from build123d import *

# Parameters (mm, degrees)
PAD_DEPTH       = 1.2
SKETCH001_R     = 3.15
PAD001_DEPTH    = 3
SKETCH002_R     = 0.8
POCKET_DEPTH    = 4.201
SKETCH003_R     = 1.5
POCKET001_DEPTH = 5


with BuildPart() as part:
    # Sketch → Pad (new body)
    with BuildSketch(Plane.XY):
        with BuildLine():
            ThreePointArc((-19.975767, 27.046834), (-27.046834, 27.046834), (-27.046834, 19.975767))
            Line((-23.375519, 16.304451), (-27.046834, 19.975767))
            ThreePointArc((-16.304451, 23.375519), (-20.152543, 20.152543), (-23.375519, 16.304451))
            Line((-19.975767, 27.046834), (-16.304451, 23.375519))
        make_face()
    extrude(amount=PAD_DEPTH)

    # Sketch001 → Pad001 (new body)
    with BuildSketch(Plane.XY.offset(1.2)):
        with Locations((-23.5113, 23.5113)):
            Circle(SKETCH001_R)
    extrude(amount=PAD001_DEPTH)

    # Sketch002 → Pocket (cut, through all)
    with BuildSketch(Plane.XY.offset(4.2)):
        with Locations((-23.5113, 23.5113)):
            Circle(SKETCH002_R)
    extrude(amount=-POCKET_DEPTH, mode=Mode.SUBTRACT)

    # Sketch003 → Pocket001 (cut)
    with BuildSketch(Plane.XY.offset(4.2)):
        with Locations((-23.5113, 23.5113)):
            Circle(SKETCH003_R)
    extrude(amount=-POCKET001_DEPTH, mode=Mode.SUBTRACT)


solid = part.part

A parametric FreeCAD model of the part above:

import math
import FreeCAD as App
import Part
import Sketcher

V = App.Vector
Q = App.Units.Quantity

doc = App.newDocument("Part")
body = doc.addObject("PartDesign::Body", "Body")

# Sketch on XY plane
sketch1 = body.newObject("Sketcher::SketchObject", "Sketch")
sketch1.AttachmentSupport = (doc.getObject("XY_Plane"), [""])
sketch1.MapMode = "FlatFace"
sketch1.addGeometry([
    Part.ArcOfCircle(Part.Circle(V(-23.5, 23.5, 0), V(0, 0, 1), 5), math.radians(45), math.radians(225)),
    Part.LineSegment(V(-27, 20, 0), V(-23.4, 16.3, 0)),
    Part.ArcOfCircle(Part.Circle(V(0, 0, 0), V(0, 0, 1), 28.5), math.radians(125), math.radians(145)),
    Part.LineSegment(V(-16.3, 23.4, 0), V(-20, 27, 0)),
], False)
sketch1.addConstraint([
    Sketcher.Constraint("Tangent", 0, 2, 1, 1),
    Sketcher.Constraint("Coincident", 1, 2, 2, 2),
    Sketcher.Constraint("Coincident", 2, 1, 3, 1),
    Sketcher.Constraint("Tangent", 3, 2, 0, 1),
    Sketcher.Constraint("Parallel", 1, 3),
    Sketcher.Constraint("Equal", 1, 3),
    Sketcher.Constraint("Radius", 0, Q("4.999999 mm")),
    Sketcher.Constraint("Angle", 1, Q("-45.000008 deg")),
    Sketcher.Constraint("Radius", 2, Q("28.500036 mm")),
    Sketcher.Constraint("DistanceX", 0, 3, -1, 1, Q("23.511301 mm")),
    Sketcher.Constraint("DistanceY", -1, 1, 0, 3, Q("23.511301 mm")),
    Sketcher.Constraint("DistanceX", 1, 2, -1, 1, Q("23.375519 mm")),
])
pad1 = body.newObject("PartDesign::Pad", "Pad")
pad1.Profile = sketch1
pad1.Length = 1.2

# Sketch on XY plane
sketch2 = body.newObject("Sketcher::SketchObject", "Sketch001")
sketch2.AttachmentSupport = (doc.getObject("XY_Plane"), [""])
sketch2.MapMode = "FlatFace"
sketch2.AttachmentOffset = App.Placement(V(0, 0, 1.2), App.Rotation())
sketch2.addGeometry(Part.Circle(V(-23.5, 23.5, 0), V(0, 0, 1), 3.1), False)
sketch2.addConstraint([
    Sketcher.Constraint("Diameter", 0, Q("6.3 mm")),
    Sketcher.Constraint("DistanceX", 0, 3, -1, 1, Q("23.5113 mm")),
    Sketcher.Constraint("DistanceY", -1, 1, 0, 3, Q("23.5113 mm")),
])
pad2 = body.newObject("PartDesign::Pad", "Pad001")
pad2.Profile = sketch2
pad2.Length = 3

# Sketch on XY plane
sketch3 = body.newObject("Sketcher::SketchObject", "Sketch002")
sketch3.AttachmentSupport = (doc.getObject("XY_Plane"), [""])
sketch3.MapMode = "FlatFace"
sketch3.AttachmentOffset = App.Placement(V(0, 0, 4.2), App.Rotation())
sketch3.addGeometry(Part.Circle(V(-23.5, 23.5, 0), V(0, 0, 1), 0.8), False)
sketch3.addConstraint([
    Sketcher.Constraint("Diameter", 0, Q("1.6 mm")),
    Sketcher.Constraint("DistanceX", 0, 3, -1, 1, Q("23.5113 mm")),
    Sketcher.Constraint("DistanceY", -1, 1, 0, 3, Q("23.5113 mm")),
])
pocket1 = body.newObject("PartDesign::Pocket", "Pocket")
pocket1.Profile = sketch3
pocket1.Type = "ThroughAll"

# Sketch on XY plane
sketch4 = body.newObject("Sketcher::SketchObject", "Sketch003")
sketch4.AttachmentSupport = (doc.getObject("XY_Plane"), [""])
sketch4.MapMode = "FlatFace"
sketch4.AttachmentOffset = App.Placement(V(0, 0, 4.2), App.Rotation())
sketch4.addGeometry(Part.Circle(V(-23.5, 23.5, 0), V(0, 0, 1), 1.5), False)
sketch4.addConstraint([
    Sketcher.Constraint("Diameter", 0, Q("3 mm")),
    Sketcher.Constraint("DistanceX", 0, 3, -1, 1, Q("23.5113 mm")),
    Sketcher.Constraint("DistanceY", -1, 1, 0, 3, Q("23.5113 mm")),
])
pocket2 = body.newObject("PartDesign::Pocket", "Pocket001")
pocket2.Profile = sketch4
pocket2.Length = 5

doc.recompute()
